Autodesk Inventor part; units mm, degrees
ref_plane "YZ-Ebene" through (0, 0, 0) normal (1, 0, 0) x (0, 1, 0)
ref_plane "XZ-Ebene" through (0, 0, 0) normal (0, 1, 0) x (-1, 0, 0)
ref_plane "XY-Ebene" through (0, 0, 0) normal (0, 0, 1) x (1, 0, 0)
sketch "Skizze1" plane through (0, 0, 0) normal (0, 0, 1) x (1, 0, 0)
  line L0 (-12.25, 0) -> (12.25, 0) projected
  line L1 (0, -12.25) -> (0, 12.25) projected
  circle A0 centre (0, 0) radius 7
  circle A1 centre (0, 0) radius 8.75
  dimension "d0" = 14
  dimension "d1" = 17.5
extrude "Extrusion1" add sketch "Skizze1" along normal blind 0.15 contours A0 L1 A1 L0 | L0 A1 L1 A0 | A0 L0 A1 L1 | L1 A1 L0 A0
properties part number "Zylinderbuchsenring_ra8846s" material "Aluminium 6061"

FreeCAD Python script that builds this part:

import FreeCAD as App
import Part
import Sketcher
from FreeCAD import Vector

doc = App.newDocument("Part")
params = doc.addObject("Spreadsheet::Sheet", "Params")
for row, (alias, value) in enumerate([
    ("sketch1_diameter", "14 mm"),
    ("sketch1_diameter2", "17.5 mm"),
    ("pad1_length", "0.15 mm"),
], start=1):
    params.set(f"A{row}", alias)
    params.set(f"B{row}", "=" + value)
    params.setAlias(f"B{row}", alias)

body = doc.addObject("PartDesign::Body", "Body")

# Sketch on XY plane
sketch1 = body.newObject("Sketcher::SketchObject", "Sketch")
sketch1.AttachmentSupport = (doc.getObject("XY_Plane"), [""])
sketch1.MapMode = "FlatFace"
sketch1.addGeometry(Part.Circle(Vector(0, 0, 0), Vector(0, 0, 1), 9), False)
sketch1.addGeometry(Part.Circle(Vector(0, 0, 0), Vector(0, 0, 1), 7), False)
sketch1.addConstraint(Sketcher.Constraint("Coincident", 0, 3, -1, 1))
sketch1.addConstraint(Sketcher.Constraint("Coincident", 1, 3, -1, 1))
sketch1.addConstraint(Sketcher.Constraint("Diameter", 1, 14.0))
sketch1.addConstraint(Sketcher.Constraint("Diameter", 0, 17.5))
sketch1.setExpression("Constraints[2]", "Params.sketch1_diameter")
sketch1.setExpression("Constraints[3]", "Params.sketch1_diameter2")
pad1 = body.newObject("PartDesign::Pad", "Pad")
pad1.Profile = sketch1
pad1.setExpression("Length", "Params.pad1_length")

doc.recompute()
